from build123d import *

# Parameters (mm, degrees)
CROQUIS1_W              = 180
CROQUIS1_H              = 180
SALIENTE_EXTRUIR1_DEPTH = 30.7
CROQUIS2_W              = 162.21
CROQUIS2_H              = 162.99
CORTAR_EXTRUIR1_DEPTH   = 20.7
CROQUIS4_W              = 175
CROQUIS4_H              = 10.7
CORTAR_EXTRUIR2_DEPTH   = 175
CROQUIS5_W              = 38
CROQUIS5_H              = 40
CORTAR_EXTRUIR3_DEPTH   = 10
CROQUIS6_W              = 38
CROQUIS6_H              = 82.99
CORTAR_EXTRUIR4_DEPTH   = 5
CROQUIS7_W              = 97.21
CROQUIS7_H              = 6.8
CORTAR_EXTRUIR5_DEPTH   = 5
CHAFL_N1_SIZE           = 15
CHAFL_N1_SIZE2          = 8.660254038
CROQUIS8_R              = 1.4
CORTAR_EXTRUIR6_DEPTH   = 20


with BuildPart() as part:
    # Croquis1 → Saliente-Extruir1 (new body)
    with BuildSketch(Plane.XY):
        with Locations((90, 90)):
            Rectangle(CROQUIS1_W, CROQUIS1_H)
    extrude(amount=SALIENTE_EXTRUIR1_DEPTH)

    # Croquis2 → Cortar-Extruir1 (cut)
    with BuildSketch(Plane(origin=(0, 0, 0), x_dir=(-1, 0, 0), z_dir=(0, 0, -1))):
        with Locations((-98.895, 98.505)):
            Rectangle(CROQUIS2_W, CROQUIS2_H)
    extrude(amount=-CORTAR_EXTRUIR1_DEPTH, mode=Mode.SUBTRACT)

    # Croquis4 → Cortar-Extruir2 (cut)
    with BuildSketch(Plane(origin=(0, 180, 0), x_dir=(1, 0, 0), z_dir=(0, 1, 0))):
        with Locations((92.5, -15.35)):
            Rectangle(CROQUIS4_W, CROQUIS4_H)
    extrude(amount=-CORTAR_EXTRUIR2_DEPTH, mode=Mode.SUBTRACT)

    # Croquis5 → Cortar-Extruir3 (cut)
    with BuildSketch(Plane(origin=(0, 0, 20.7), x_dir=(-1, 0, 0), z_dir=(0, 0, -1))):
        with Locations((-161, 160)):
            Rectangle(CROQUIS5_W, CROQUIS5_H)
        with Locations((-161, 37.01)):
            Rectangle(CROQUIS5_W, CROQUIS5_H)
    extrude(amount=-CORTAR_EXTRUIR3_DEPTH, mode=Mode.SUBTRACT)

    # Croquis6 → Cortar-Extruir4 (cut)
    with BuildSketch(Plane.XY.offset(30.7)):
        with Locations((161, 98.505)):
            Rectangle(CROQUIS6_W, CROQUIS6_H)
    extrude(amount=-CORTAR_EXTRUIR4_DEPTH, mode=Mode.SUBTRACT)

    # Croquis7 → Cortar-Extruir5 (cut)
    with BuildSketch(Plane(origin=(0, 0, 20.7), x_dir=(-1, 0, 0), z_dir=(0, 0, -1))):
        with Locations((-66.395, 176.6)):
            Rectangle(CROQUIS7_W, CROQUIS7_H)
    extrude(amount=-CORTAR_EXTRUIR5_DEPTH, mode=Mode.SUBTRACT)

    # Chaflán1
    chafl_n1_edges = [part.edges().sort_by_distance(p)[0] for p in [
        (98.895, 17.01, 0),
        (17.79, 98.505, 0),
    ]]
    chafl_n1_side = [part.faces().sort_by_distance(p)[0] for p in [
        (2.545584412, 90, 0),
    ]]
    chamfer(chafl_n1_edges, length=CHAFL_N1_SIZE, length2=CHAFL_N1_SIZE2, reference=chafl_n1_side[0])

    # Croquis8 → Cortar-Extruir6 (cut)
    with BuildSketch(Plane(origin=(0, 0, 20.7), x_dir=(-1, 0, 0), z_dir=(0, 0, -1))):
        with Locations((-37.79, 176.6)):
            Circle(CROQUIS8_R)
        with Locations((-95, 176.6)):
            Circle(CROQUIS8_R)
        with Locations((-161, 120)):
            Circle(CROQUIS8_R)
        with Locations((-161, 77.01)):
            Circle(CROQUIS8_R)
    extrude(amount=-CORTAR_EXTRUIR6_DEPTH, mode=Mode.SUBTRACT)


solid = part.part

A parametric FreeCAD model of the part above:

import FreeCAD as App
import Part
import Sketcher


def edges_at(feature, points):
    """Names of the edges that pass closest to the given points."""
    edges = feature.Shape.Edges
    near = lambda p: min(range(len(edges)), key=lambda i: edges[i].distToShape(Part.Vertex(*p))[0])
    return sorted({f"Edge{near(p) + 1}" for p in points})

doc = App.newDocument("Part")
params = doc.addObject("Spreadsheet::Sheet", "Params")
for row, (alias, value) in enumerate([
    ("sketch1_width", "180 mm"),
    ("pad1_length", "30.7 mm"),
    ("sketch2_width", "162.21 mm"),
    ("sketch2_height", "162.99 mm"),
    ("pocket1_length", "20.7 mm"),
    ("sketch3_width", "175 mm"),
    ("sketch3_height", "10.7 mm"),
    ("pocket2_length", "175 mm"),
    ("sketch4_width", "38 mm"),
    ("sketch4_height", "40 mm"),
    ("pocket3_length", "10 mm"),
    ("sketch5_width", "38 mm"),
    ("sketch5_height", "82.99 mm"),
    ("pocket4_length", "5 mm"),
    ("sketch6_height", "6.8 mm"),
    ("sketch6_width", "97.21 mm"),
    ("pocket5_length", "5 mm"),
    ("chamfer_size", "15 mm"),
    ("chamfer_size2", "8.660254 mm"),
    ("sketch7_diameter", "2.8 mm"),
    ("pocket6_length", "20 mm"),
], start=1):
    params.set(f"A{row}", alias)
    params.set(f"B{row}", "=" + value)
    params.setAlias(f"B{row}", alias)

body = doc.addObject("PartDesign::Body", "Body")

# Sketch on XY plane
sketch1 = doc.addObject("Sketcher::SketchObject", "Sketch")
body.addObject(sketch1)
sketch1.AttachmentSupport = (doc.XY_Plane, [""])
sketch1.MapMode = "FlatFace"
sketch1.addGeometry(Part.LineSegment(App.Vector(0, 180, 0), App.Vector(0, 0, 0)), False)
sketch1.addGeometry(Part.LineSegment(App.Vector(0, 0, 0), App.Vector(180, 0, 0)), False)
sketch1.addGeometry(Part.LineSegment(App.Vector(180, 0, 0), App.Vector(180, 180, 0)), False)
sketch1.addGeometry(Part.LineSegment(App.Vector(180, 180, 0), App.Vector(0, 180, 0)), False)
sketch1.addConstraint(Sketcher.Constraint("Coincident", 0, 2, 1, 1))
sketch1.addConstraint(Sketcher.Constraint("Coincident", 1, 2, 2, 1))
sketch1.addConstraint(Sketcher.Constraint("Coincident", 2, 2, 3, 1))
sketch1.addConstraint(Sketcher.Constraint("Coincident", 3, 2, 0, 1))
sketch1.addConstraint(Sketcher.Constraint("Vertical", 0))
sketch1.addConstraint(Sketcher.Constraint("Horizontal", 1))
sketch1.addConstraint(Sketcher.Constraint("Vertical", 2))
sketch1.addConstraint(Sketcher.Constraint("Horizontal", 3))
sketch1.addConstraint(Sketcher.Constraint("Coincident", 0, 2, -1, 1))
sketch1.addConstraint(Sketcher.Constraint("Equal", 3, 0))
sketch1.addConstraint(Sketcher.Constraint("DistanceX", 1, 1, 1, 2, 180.0))
sketch1.setExpression("Constraints[10]", "Params.sketch1_width")
pad1 = doc.addObject("PartDesign::Pad", "Pad")
body.addObject(pad1)
pad1.Profile = sketch1
pad1.setExpression("Length", "Params.pad1_length")

# Sketch on XY plane
sketch2 = doc.addObject("Sketcher::SketchObject", "Sketch001")
body.addObject(sketch2)
sketch2.AttachmentSupport = (doc.XY_Plane, [""])
sketch2.MapMode = "FlatFace"
sketch2.addGeometry(Part.LineSegment(App.Vector(180, 180, 0), App.Vector(180, 17, 0)), False)
sketch2.addGeometry(Part.LineSegment(App.Vector(180, 17, 0), App.Vector(18, 17, 0)), False)
sketch2.addGeometry(Part.LineSegment(App.Vector(18, 17, 0), App.Vector(18, 180, 0)), False)
sketch2.addGeometry(Part.LineSegment(App.Vector(18, 180, 0), App.Vector(180, 180, 0)), False)
sketch2.addConstraint(Sketcher.Constraint("Coincident", 0, 2, 1, 1))
sketch2.addConstraint(Sketcher.Constraint("Coincident", 1, 2, 2, 1))
sketch2.addConstraint(Sketcher.Constraint("Coincident", 2, 2, 3, 1))
sketch2.addConstraint(Sketcher.Constraint("Coincident", 3, 2, 0, 1))
sketch2.addConstraint(Sketcher.Constraint("Vertical", 0))
sketch2.addConstraint(Sketcher.Constraint("Horizontal", 1))
sketch2.addConstraint(Sketcher.Constraint("Vertical", 2))
sketch2.addConstraint(Sketcher.Constraint("Horizontal", 3))
sketch2.addConstraint(Sketcher.Constraint("DistanceX", -1, 1, 0, 2, 180.0))
sketch2.addConstraint(Sketcher.Constraint("DistanceY", -1, 1, 2, 2, 180.0))
sketch2.addConstraint(Sketcher.Constraint("DistanceX", 1, 2, 1, 1, 162.21))
sketch2.addConstraint(Sketcher.Constraint("DistanceY", 0, 2, 0, 1, 162.99))
sketch2.setExpression("Constraints[10]", "Params.sketch2_width")
sketch2.setExpression("Constraints[11]", "Params.sketch2_height")
pocket1 = doc.addObject("PartDesign::Pocket", "Pocket")
body.addObject(pocket1)
pocket1.Profile = sketch2
pocket1.setExpression("Length", "Params.pocket1_length")
pocket1.Reversed = True

# Sketch on XZ plane
sketch3 = doc.addObject("Sketcher::SketchObject", "Sketch002")
body.addObject(sketch3)
sketch3.AttachmentSupport = (doc.XZ_Plane, [""])
sketch3.MapMode = "FlatFace"
sketch3.AttachmentOffset = App.Placement(App.Vector(0, 0, -180), App.Rotation())
sketch3.addGeometry(Part.LineSegment(App.Vector(5, 10, 0), App.Vector(5, 21, 0)), False)
sketch3.addGeometry(Part.LineSegment(App.Vector(5, 21, 0), App.Vector(180, 21, 0)), False)
sketch3.addGeometry(Part.LineSegment(App.Vector(180, 21, 0), App.Vector(180, 10, 0)), False)
sketch3.addGeometry(Part.LineSegment(App.Vector(180, 10, 0), App.Vector(5, 10, 0)), False)
sketch3.addConstraint(Sketcher.Constraint("Coincident", 0, 2, 1, 1))
sketch3.addConstraint(Sketcher.Constraint("Coincident", 1, 2, 2, 1))
sketch3.addConstraint(Sketcher.Constraint("Coincident", 2, 2, 3, 1))
sketch3.addConstraint(Sketcher.Constraint("Coincident", 3, 2, 0, 1))
sketch3.addConstraint(Sketcher.Constraint("Vertical", 0))
sketch3.addConstraint(Sketcher.Constraint("Horizontal", 1))
sketch3.addConstraint(Sketcher.Constraint("Vertical", 2))
sketch3.addConstraint(Sketcher.Constraint("Horizontal", 3))
sketch3.addConstraint(Sketcher.Constraint("DistanceX", 1, 1, 1, 2, 175.0))
sketch3.addConstraint(Sketcher.Constraint("DistanceY", 0, 1, 0, 2, 10.7))
sketch3.addConstraint(Sketcher.Constraint("DistanceX", -1, 1, 0, 2, 5.0))
sketch3.addConstraint(Sketcher.Constraint("DistanceY", -1, 1, 2, 2, 10.0))
sketch3.setExpression("Constraints[8]", "Params.sketch3_width")
sketch3.setExpression("Constraints[9]", "Params.sketch3_height")
pocket2 = doc.addObject("PartDesign::Pocket", "Pocket001")
body.addObject(pocket2)
pocket2.Profile = sketch3
pocket2.setExpression("Length", "Params.pocket2_length")
pocket2.Reversed = True

# Sketch on XY plane
sketch4 = doc.addObject("Sketcher::SketchObject", "Sketch003")
body.addObject(sketch4)
sketch4.AttachmentSupport = (doc.XY_Plane, [""])
sketch4.MapMode = "FlatFace"
sketch4.AttachmentOffset = App.Placement(App.Vector(0, 0, 20.7), App.Rotation())
sketch4.addGeometry(Part.LineSegment(App.Vector(180, 180, 0), App.Vector(180, 140, 0)), False)
sketch4.addGeometry(Part.LineSegment(App.Vector(180, 140, 0), App.Vector(142, 140, 0)), False)
sketch4.addGeometry(Part.LineSegment(App.Vector(142, 140, 0), App.Vector(142, 180, 0)), False)
sketch4.addGeometry(Part.LineSegment(App.Vector(142, 180, 0), App.Vector(180, 180, 0)), False)
sketch4.addGeometry(Part.LineSegment(App.Vector(180, 57, 0), App.Vector(180, 17, 0)), False)
sketch4.addGeometry(Part.LineSegment(App.Vector(180, 17, 0), App.Vector(142, 17, 0)), False)
sketch4.addGeometry(Part.LineSegment(App.Vector(142, 17, 0), App.Vector(142, 57, 0)), False)
sketch4.addGeometry(Part.LineSegment(App.Vector(142, 57, 0), App.Vector(180, 57, 0)), False)
sketch4.addConstraint(Sketcher.Constraint("Coincident", 0, 2, 1, 1))
sketch4.addConstraint(Sketcher.Constraint("Coincident", 1, 2, 2, 1))
sketch4.addConstraint(Sketcher.Constraint("Coincident", 2, 2, 3, 1))
sketch4.addConstraint(Sketcher.Constraint("Coincident", 3, 2, 0, 1))
sketch4.addConstraint(Sketcher.Constraint("Coincident", 4, 2, 5, 1))
sketch4.addConstraint(Sketcher.Constraint("Coincident", 5, 2, 6, 1))
sketch4.addConstraint(Sketcher.Constraint("Coincident", 6, 2, 7, 1))
sketch4.addConstraint(Sketcher.Constraint("Coincident", 7, 2, 4, 1))
sketch4.addConstraint(Sketcher.Constraint("Vertical", 0))
sketch4.addConstraint(Sketcher.Constraint("Horizontal", 1))
sketch4.addConstraint(Sketcher.Constraint("Vertical", 2))
sketch4.addConstraint(Sketcher.Constraint("Horizontal", 3))
sketch4.addConstraint(Sketcher.Constraint("Vertical", 4))
sketch4.addConstraint(Sketcher.Constraint("Horizontal", 5))
sketch4.addConstraint(Sketcher.Constraint("Vertical", 6))
sketch4.addConstraint(Sketcher.Constraint("Horizontal", 7))
sketch4.addConstraint(Sketcher.Constraint("Vertical", 3, 2, 4, 2))
sketch4.addConstraint(Sketcher.Constraint("Vertical", 2, 2, 5, 2))
sketch4.addConstraint(Sketcher.Constraint("Equal", 2, 4))
sketch4.addConstraint(Sketcher.Constraint("DistanceX", 1, 2, 1, 1, 38.0))
sketch4.addConstraint(Sketcher.Constraint("DistanceY", 0, 2, 0, 1, 40.0))
sketch4.addConstraint(Sketcher.Constraint("DistanceX", -1, 1, 0, 2, 180.0))
sketch4.addConstraint(Sketcher.Constraint("DistanceY", -1, 1, 0, 2, 140.0))
sketch4.addConstraint(Sketcher.Constraint("DistanceY", -1, 1, 4, 2, 17.01))
sketch4.setExpression("Constraints[19]", "Params.sketch4_width")
sketch4.setExpression("Constraints[20]", "Params.sketch4_height")
pocket3 = doc.addObject("PartDesign::Pocket", "Pocket002")
body.addObject(pocket3)
pocket3.Profile = sketch4
pocket3.setExpression("Length", "Params.pocket3_length")
pocket3.Reversed = True

# Sketch on XY plane
sketch5 = doc.addObject("Sketcher::SketchObject", "Sketch004")
body.addObject(sketch5)
sketch5.AttachmentSupport = (doc.XY_Plane, [""])
sketch5.MapMode = "FlatFace"
sketch5.AttachmentOffset = App.Placement(App.Vector(0, 0, 30.7), App.Rotation())
sketch5.addGeometry(Part.LineSegment(App.Vector(142, 140, 0), App.Vector(142, 57, 0)), False)
sketch5.addGeometry(Part.LineSegment(App.Vector(142, 57, 0), App.Vector(180, 57, 0)), False)
sketch5.addGeometry(Part.LineSegment(App.Vector(180, 57, 0), App.Vector(180, 140, 0)), False)
sketch5.addGeometry(Part.LineSegment(App.Vector(180, 140, 0), App.Vector(142, 140, 0)), False)
sketch5.addConstraint(Sketcher.Constraint("Coincident", 0, 2, 1, 1))
sketch5.addConstraint(Sketcher.Constraint("Coincident", 1, 2, 2, 1))
sketch5.addConstraint(Sketcher.Constraint("Coincident", 2, 2, 3, 1))
sketch5.addConstraint(Sketcher.Constraint("Coincident", 3, 2, 0, 1))
sketch5.addConstraint(Sketcher.Constraint("Vertical", 0))
sketch5.addConstraint(Sketcher.Constraint("Horizontal", 1))
sketch5.addConstraint(Sketcher.Constraint("Vertical", 2))
sketch5.addConstraint(Sketcher.Constraint("Horizontal", 3))
sketch5.addConstraint(Sketcher.Constraint("DistanceX", 1, 1, 1, 2, 38.0))
sketch5.addConstraint(Sketcher.Constraint("DistanceX", -1, 1, 0, 2, 142.0))
sketch5.addConstraint(Sketcher.Constraint("DistanceY", -1, 1, 2, 2, 140.0))
sketch5.addConstraint(Sketcher.Constraint("DistanceY", 0, 2, 0, 1, 82.99))
sketch5.setExpression("Constraints[8]", "Params.sketch5_width")
sketch5.setExpression("Constraints[11]", "Params.sketch5_height")
pocket4 = doc.addObject("PartDesign::Pocket", "Pocket003")
body.addObject(pocket4)
pocket4.Profile = sketch5
pocket4.setExpression("Length", "Params.pocket4_length")

# Sketch on XY plane
sketch6 = doc.addObject("Sketcher::SketchObject", "Sketch005")
body.addObject(sketch6)
sketch6.AttachmentSupport = (doc.XY_Plane, [""])
sketch6.MapMode = "FlatFace"
sketch6.AttachmentOffset = App.Placement(App.Vector(0, 0, 20.7), App.Rotation())
sketch6.addGeometry(Part.LineSegment(App.Vector(115, 180, 0), App.Vector(115, 173, 0)), False)
sketch6.addGeometry(Part.LineSegment(App.Vector(115, 173, 0), App.Vector(18, 173, 0)), False)
sketch6.addGeometry(Part.LineSegment(App.Vector(18, 173, 0), App.Vector(18, 180, 0)), False)
sketch6.addGeometry(Part.LineSegment(App.Vector(18, 180, 0), App.Vector(115, 180, 0)), False)
sketch6.addConstraint(Sketcher.Constraint("Coincident", 0, 2, 1, 1))
sketch6.addConstraint(Sketcher.Constraint("Coincident", 1, 2, 2, 1))
sketch6.addConstraint(Sketcher.Constraint("Coincident", 2, 2, 3, 1))
sketch6.addConstraint(Sketcher.Constraint("Coincident", 3, 2, 0, 1))
sketch6.addConstraint(Sketcher.Constraint("Vertical", 0))
sketch6.addConstraint(Sketcher.Constraint("Horizontal", 1))
sketch6.addConstraint(Sketcher.Constraint("Vertical", 2))
sketch6.addConstraint(Sketcher.Constraint("Horizontal", 3))
sketch6.addConstraint(Sketcher.Constraint("DistanceY", 0, 2, 0, 1, 6.8))
sketch6.addConstraint(Sketcher.Constraint("DistanceX", -1, 1, 0, 2, 115.0))
sketch6.addConstraint(Sketcher.Constraint("DistanceY", -1, 1, 2, 2, 180.0))
sketch6.addConstraint(Sketcher.Constraint("DistanceX", 1, 2, 1, 1, 97.21))
sketch6.setExpression("Constraints[8]", "Params.sketch6_height")
sketch6.setExpression("Constraints[11]", "Params.sketch6_width")
pocket5 = doc.addObject("PartDesign::Pocket", "Pocket004")
body.addObject(pocket5)
pocket5.Profile = sketch6
pocket5.setExpression("Length", "Params.pocket5_length")
pocket5.Reversed = True
doc.recompute()

chamfer = doc.addObject("PartDesign::Chamfer", "Chamfer")
body.addObject(chamfer)
chamfer.Base = (pocket5, edges_at(pocket5, [(98.895, 17.01, 0), (17.79, 98.505, 0)]))
chamfer.ChamferType = "Two distances"
chamfer.setExpression("Size", "Params.chamfer_size")
chamfer.setExpression("Size2", "Params.chamfer_size2")

# Sketch on XY plane
sketch7 = doc.addObject("Sketcher::SketchObject", "Sketch006")
body.addObject(sketch7)
sketch7.AttachmentSupport = (doc.XY_Plane, [""])
sketch7.MapMode = "FlatFace"
sketch7.AttachmentOffset = App.Placement(App.Vector(0, 0, 20.7), App.Rotation())
sketch7.addGeometry(Part.Circle(App.Vector(37.8, 176.6, 0), App.Vector(0, 0, 1), 1.4), False)
sketch7.addGeometry(Part.Circle(App.Vector(95, 176.6, 0), App.Vector(0, 0, 1), 1.4), False)
sketch7.addGeometry(Part.Circle(App.Vector(161, 120, 0), App.Vector(0, 0, 1), 1.4), False)
sketch7.addGeometry(Part.Circle(App.Vector(161, 77, 0), App.Vector(0, 0, 1), 1.4), False)
sketch7.addConstraint(Sketcher.Constraint("Equal", 0, 1))
sketch7.addConstraint(Sketcher.Constraint("Equal", 1, 2))
sketch7.addConstraint(Sketcher.Constraint("Equal", 2, 3))
sketch7.addConstraint(Sketcher.Constraint("Horizontal", 0, 3, 1, 3))
sketch7.addConstraint(Sketcher.Constraint("Vertical", 2, 3, 3, 3))
sketch7.addConstraint(Sketcher.Constraint("Diameter", 0, 2.8))
sketch7.addConstraint(Sketcher.Constraint("DistanceX", -1, 1, 1, 3, 95.0))
sketch7.addConstraint(Sketcher.Constraint("DistanceX", -1, 1, 2, 3, 161.0))
sketch7.addConstraint(Sketcher.Constraint("DistanceY", -1, 1, 2, 3, 120.0))
sketch7.addConstraint(Sketcher.Constraint("DistanceY", -1, 1, 0, 3, 176.6))
sketch7.addConstraint(Sketcher.Constraint("DistanceX", -1, 1, 0, 3, 37.79))
sketch7.addConstraint(Sketcher.Constraint("DistanceY", -1, 1, 3, 3, 77.01))
sketch7.setExpression("Constraints[5]", "Params.sketch7_diameter")
pocket6 = doc.addObject("PartDesign::Pocket", "Pocket005")
body.addObject(pocket6)
pocket6.Profile = sketch7
pocket6.setExpression("Length", "Params.pocket6_length")
pocket6.Reversed = True

doc.recompute()
